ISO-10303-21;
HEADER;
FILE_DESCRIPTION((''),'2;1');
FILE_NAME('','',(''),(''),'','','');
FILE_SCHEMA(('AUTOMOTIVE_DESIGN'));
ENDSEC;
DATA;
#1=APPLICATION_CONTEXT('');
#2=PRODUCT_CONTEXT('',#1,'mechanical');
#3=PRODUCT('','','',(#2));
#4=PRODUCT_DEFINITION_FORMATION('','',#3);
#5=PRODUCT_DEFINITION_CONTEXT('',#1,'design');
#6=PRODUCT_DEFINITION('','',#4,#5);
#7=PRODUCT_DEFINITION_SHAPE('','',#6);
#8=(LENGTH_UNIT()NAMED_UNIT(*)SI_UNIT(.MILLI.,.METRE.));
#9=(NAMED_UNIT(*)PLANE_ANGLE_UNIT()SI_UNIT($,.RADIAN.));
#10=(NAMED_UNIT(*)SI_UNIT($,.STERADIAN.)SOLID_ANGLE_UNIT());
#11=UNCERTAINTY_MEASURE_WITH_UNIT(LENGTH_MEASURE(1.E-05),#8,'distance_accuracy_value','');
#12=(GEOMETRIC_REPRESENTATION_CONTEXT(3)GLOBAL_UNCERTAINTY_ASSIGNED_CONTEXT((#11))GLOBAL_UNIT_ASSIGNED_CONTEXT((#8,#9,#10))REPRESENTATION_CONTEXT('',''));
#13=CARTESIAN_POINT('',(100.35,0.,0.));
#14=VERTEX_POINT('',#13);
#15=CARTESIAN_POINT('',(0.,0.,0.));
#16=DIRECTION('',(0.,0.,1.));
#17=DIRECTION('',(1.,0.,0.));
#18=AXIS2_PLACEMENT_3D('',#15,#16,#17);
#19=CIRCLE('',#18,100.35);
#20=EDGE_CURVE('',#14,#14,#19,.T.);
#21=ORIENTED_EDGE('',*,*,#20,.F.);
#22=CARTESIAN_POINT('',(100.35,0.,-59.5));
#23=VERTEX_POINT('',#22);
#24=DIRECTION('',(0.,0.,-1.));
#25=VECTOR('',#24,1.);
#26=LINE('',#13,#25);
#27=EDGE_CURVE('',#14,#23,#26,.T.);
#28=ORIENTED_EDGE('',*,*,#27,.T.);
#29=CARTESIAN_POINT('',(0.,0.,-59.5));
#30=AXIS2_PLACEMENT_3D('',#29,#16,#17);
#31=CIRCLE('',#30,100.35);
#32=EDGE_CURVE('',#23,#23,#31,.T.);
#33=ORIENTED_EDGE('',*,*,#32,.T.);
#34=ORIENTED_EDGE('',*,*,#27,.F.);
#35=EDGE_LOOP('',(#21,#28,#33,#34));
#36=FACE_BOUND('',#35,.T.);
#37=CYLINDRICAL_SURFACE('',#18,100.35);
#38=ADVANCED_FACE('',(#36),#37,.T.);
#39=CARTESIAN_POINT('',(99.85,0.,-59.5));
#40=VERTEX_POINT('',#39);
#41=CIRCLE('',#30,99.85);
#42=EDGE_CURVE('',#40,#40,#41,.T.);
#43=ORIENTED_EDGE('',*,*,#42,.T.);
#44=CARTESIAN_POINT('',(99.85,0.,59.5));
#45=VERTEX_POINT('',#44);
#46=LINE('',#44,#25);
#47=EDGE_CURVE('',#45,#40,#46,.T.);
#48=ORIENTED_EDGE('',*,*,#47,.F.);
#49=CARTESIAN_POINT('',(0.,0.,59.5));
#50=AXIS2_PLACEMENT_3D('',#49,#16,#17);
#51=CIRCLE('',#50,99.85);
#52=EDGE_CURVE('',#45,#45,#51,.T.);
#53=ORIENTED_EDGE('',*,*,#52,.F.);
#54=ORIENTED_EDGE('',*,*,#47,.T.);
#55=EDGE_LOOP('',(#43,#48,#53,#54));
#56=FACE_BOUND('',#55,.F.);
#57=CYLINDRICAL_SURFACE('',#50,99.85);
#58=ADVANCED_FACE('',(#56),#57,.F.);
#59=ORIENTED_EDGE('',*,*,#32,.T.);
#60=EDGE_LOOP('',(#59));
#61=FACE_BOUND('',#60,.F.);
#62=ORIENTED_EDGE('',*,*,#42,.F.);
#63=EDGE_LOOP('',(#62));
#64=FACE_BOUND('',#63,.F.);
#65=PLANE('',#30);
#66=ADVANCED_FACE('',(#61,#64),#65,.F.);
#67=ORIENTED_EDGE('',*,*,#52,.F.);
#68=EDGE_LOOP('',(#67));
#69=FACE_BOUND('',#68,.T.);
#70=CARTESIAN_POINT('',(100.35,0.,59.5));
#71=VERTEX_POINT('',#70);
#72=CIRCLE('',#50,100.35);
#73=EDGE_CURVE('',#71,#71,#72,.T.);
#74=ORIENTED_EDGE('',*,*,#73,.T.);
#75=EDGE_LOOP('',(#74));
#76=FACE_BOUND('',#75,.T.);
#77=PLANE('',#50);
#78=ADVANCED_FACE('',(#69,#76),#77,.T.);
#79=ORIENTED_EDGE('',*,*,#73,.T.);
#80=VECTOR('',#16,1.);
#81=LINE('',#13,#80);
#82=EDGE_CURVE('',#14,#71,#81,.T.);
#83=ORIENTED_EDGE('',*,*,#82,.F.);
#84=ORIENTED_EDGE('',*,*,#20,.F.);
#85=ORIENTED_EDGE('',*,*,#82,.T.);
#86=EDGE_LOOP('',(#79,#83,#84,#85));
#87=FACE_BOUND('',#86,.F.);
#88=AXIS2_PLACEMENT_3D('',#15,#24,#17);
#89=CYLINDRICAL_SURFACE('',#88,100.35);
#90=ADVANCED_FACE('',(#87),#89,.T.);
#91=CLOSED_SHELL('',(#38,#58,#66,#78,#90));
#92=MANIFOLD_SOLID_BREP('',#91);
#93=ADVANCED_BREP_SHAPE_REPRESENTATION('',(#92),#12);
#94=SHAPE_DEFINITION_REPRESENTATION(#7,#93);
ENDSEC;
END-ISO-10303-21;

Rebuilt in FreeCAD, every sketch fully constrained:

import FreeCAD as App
import Part
import Sketcher

V = App.Vector
Q = App.Units.Quantity

doc = App.newDocument("Part")
body = doc.addObject("PartDesign::Body", "Body")

# Sketch on XY plane
sketch1 = doc.addObject("Sketcher::SketchObject", "Sketch")
body.addObject(sketch1)
sketch1.AttachmentSupport = (doc.XY_Plane, [""])
sketch1.MapMode = "FlatFace"
sketch1.addGeometry(Part.Circle(V(0, 0, 0), V(0, 0, 1), 100), False)
sketch1.addConstraint([
    Sketcher.Constraint("Coincident", 0, 3, -1, 1),
    Sketcher.Constraint("Diameter", 0, Q("200.7 mm")),
])
pad1 = doc.addObject("PartDesign::Pad", "Pad")
body.addObject(pad1)
pad1.Profile = sketch1
pad1.Length = 119
pad1.Midplane = True

# Sketch on XY plane
sketch2 = doc.addObject("Sketcher::SketchObject", "Sketch001")
body.addObject(sketch2)
sketch2.AttachmentSupport = (doc.XY_Plane, [""])
sketch2.MapMode = "FlatFace"
sketch2.AttachmentOffset = App.Placement(V(0, 0, 59.5), App.Rotation())
sketch2.addGeometry(Part.Circle(V(0, 0, 0), V(0, 0, 1), 100), False)
sketch2.addConstraint([
    Sketcher.Constraint("Coincident", 0, 3, -1, 1),
    Sketcher.Constraint("Diameter", 0, Q("199.7 mm")),
])
pocket1 = doc.addObject("PartDesign::Pocket", "Pocket")
body.addObject(pocket1)
pocket1.Profile = sketch2
pocket1.Type = "ThroughAll"

doc.recompute()
